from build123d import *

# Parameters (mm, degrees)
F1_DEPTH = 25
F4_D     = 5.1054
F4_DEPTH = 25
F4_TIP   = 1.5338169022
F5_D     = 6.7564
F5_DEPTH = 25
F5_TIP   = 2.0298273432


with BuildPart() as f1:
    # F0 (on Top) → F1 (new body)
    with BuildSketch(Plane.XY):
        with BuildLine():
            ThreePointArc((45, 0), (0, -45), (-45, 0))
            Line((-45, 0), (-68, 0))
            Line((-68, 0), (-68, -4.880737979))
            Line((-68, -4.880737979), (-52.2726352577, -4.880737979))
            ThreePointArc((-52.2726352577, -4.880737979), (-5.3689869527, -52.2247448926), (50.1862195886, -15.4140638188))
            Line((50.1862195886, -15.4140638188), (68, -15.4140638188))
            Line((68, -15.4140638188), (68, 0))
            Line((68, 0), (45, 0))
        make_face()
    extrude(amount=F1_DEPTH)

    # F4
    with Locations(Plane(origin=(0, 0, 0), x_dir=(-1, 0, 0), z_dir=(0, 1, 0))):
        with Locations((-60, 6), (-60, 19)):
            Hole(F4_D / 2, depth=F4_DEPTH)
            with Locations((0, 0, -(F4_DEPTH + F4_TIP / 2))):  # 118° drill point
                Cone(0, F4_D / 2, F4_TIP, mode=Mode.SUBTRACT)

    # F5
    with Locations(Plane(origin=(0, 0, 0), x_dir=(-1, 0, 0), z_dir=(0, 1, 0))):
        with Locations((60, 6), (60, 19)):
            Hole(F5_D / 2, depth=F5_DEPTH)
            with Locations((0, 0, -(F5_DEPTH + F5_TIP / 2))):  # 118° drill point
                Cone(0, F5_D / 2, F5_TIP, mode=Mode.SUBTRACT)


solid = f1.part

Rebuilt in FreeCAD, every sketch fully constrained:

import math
import FreeCAD as App
import Part
import Sketcher

doc = App.newDocument("Part")
body = doc.addObject("PartDesign::Body", "Body")

sketch1 = body.newObject("Sketcher::SketchObject", "Sketch")
sketch1.AttachmentSupport = (doc.getObject("XY_Plane"), [""])
sketch1.MapMode = "FlatFace"
sketch1.addGeometry([
    Part.ArcOfCircle(Part.Circle(App.Vector(0, 0, 0), App.Vector(0, 0, 1), 45), math.radians(180), math.radians(360)),
    Part.LineSegment(App.Vector(-45, 0, 0), App.Vector(-68, 0, 0)),
    Part.LineSegment(App.Vector(-68, 0, 0), App.Vector(-68, -4.9, 0)),
    Part.LineSegment(App.Vector(-68, -4.9, 0), App.Vector(-52.3, -4.9, 0)),
    Part.ArcOfCircle(Part.Circle(App.Vector(0, 0, 0), App.Vector(0, 0, 1), 52.5), math.radians(-175), math.radians(-17)),
    Part.LineSegment(App.Vector(50.2, -15.4, 0), App.Vector(68, -15.4, 0)),
    Part.LineSegment(App.Vector(68, -15.4, 0), App.Vector(68, 0, 0)),
    Part.LineSegment(App.Vector(68, 0, 0), App.Vector(45, 0, 0)),
], False)
sketch1.addConstraint([
    Sketcher.Constraint("Coincident", 0, 1, 1, 1),
    Sketcher.Constraint("Coincident", 1, 2, 2, 1),
    Sketcher.Constraint("Coincident", 2, 2, 3, 1),
    Sketcher.Constraint("Coincident", 3, 2, 4, 1),
    Sketcher.Constraint("Coincident", 4, 2, 5, 1),
    Sketcher.Constraint("Coincident", 5, 2, 6, 1),
    Sketcher.Constraint("Coincident", 6, 2, 7, 1),
    Sketcher.Constraint("Coincident", 7, 2, 0, 2),
    Sketcher.Constraint("Horizontal", 1),
    Sketcher.Constraint("Vertical", 2),
    Sketcher.Constraint("Horizontal", 3),
    Sketcher.Constraint("Horizontal", 5),
    Sketcher.Constraint("Vertical", 6),
    Sketcher.Constraint("Horizontal", 7),
    Sketcher.Constraint("Coincident", 0, 3, -1, 1),
    Sketcher.Constraint("Coincident", 4, 3, -1, 1),
    Sketcher.Constraint("Symmetric", 1, 2, 6, 2, -1, 1),
    Sketcher.Constraint("PointOnObject", 0, 1, -1),
    Sketcher.Constraint("Radius", 0, 45.0),
    Sketcher.Constraint("Radius", 4, 52.5),
    Sketcher.Constraint("DistanceX", 1, 2, 1, 1, 23.0),
    Sketcher.Constraint("DistanceX", 5, 1, 5, 2, 17.81378),
    Sketcher.Constraint("DistanceX", 3, 1, 3, 2, 15.727365),
])
pad1 = body.newObject("PartDesign::Pad", "Pad")
pad1.Profile = sketch1
pad1.Length = 25

sketch2 = body.newObject("Sketcher::SketchObject", "Sketch001")
sketch2.AttachmentSupport = (doc.getObject("XZ_Plane"), [""])
sketch2.MapMode = "FlatFace"
sketch2.addGeometry([
    Part.Circle(App.Vector(60, 6, 0), App.Vector(0, 0, 1), 2.6),
    Part.Circle(App.Vector(60, 19, 0), App.Vector(0, 0, 1), 2.6),
], False)
sketch2.addConstraint([
    Sketcher.Constraint("Equal", 0, 1),
    Sketcher.Constraint("Vertical", 0, 3, 1, 3),
    Sketcher.Constraint("DistanceX", -1, 1, 0, 3, 60.0),
    Sketcher.Constraint("DistanceY", -1, 1, 0, 3, 6.0),
    Sketcher.Constraint("DistanceY", -1, 1, 1, 3, 19.0),
    Sketcher.Constraint("Diameter", 0, 5.1054),
])
doc.recompute()
hole = body.newObject("PartDesign::Hole", "Hole")
hole.Profile = sketch2
hole.ThreadType = "None"
hole.Diameter = 5.1054
hole.DepthType = "Dimension"
hole.Depth = 25
hole.DrillPoint = "Angled"
hole.DrillPointAngle = 118
hole.Reversed = True

sketch3 = body.newObject("Sketcher::SketchObject", "Sketch002")
sketch3.AttachmentSupport = (doc.getObject("XZ_Plane"), [""])
sketch3.MapMode = "FlatFace"
sketch3.addGeometry([
    Part.Circle(App.Vector(-60, 6, 0), App.Vector(0, 0, 1), 3.4),
    Part.Circle(App.Vector(-60, 19, 0), App.Vector(0, 0, 1), 3.4),
], False)
sketch3.addConstraint([
    Sketcher.Constraint("Equal", 0, 1),
    Sketcher.Constraint("Vertical", 0, 3, 1, 3),
    Sketcher.Constraint("DistanceX", 0, 3, -1, 1, 60.0),
    Sketcher.Constraint("DistanceY", -1, 1, 0, 3, 6.0),
    Sketcher.Constraint("DistanceY", -1, 1, 1, 3, 19.0),
    Sketcher.Constraint("Diameter", 0, 6.7564),
])
doc.recompute()
hole2 = body.newObject("PartDesign::Hole", "Hole001")
hole2.Profile = sketch3
hole2.ThreadType = "None"
hole2.Diameter = 6.7564
hole2.DepthType = "Dimension"
hole2.Depth = 25
hole2.DrillPoint = "Angled"
hole2.DrillPointAngle = 118
hole2.Reversed = True

doc.recompute()
